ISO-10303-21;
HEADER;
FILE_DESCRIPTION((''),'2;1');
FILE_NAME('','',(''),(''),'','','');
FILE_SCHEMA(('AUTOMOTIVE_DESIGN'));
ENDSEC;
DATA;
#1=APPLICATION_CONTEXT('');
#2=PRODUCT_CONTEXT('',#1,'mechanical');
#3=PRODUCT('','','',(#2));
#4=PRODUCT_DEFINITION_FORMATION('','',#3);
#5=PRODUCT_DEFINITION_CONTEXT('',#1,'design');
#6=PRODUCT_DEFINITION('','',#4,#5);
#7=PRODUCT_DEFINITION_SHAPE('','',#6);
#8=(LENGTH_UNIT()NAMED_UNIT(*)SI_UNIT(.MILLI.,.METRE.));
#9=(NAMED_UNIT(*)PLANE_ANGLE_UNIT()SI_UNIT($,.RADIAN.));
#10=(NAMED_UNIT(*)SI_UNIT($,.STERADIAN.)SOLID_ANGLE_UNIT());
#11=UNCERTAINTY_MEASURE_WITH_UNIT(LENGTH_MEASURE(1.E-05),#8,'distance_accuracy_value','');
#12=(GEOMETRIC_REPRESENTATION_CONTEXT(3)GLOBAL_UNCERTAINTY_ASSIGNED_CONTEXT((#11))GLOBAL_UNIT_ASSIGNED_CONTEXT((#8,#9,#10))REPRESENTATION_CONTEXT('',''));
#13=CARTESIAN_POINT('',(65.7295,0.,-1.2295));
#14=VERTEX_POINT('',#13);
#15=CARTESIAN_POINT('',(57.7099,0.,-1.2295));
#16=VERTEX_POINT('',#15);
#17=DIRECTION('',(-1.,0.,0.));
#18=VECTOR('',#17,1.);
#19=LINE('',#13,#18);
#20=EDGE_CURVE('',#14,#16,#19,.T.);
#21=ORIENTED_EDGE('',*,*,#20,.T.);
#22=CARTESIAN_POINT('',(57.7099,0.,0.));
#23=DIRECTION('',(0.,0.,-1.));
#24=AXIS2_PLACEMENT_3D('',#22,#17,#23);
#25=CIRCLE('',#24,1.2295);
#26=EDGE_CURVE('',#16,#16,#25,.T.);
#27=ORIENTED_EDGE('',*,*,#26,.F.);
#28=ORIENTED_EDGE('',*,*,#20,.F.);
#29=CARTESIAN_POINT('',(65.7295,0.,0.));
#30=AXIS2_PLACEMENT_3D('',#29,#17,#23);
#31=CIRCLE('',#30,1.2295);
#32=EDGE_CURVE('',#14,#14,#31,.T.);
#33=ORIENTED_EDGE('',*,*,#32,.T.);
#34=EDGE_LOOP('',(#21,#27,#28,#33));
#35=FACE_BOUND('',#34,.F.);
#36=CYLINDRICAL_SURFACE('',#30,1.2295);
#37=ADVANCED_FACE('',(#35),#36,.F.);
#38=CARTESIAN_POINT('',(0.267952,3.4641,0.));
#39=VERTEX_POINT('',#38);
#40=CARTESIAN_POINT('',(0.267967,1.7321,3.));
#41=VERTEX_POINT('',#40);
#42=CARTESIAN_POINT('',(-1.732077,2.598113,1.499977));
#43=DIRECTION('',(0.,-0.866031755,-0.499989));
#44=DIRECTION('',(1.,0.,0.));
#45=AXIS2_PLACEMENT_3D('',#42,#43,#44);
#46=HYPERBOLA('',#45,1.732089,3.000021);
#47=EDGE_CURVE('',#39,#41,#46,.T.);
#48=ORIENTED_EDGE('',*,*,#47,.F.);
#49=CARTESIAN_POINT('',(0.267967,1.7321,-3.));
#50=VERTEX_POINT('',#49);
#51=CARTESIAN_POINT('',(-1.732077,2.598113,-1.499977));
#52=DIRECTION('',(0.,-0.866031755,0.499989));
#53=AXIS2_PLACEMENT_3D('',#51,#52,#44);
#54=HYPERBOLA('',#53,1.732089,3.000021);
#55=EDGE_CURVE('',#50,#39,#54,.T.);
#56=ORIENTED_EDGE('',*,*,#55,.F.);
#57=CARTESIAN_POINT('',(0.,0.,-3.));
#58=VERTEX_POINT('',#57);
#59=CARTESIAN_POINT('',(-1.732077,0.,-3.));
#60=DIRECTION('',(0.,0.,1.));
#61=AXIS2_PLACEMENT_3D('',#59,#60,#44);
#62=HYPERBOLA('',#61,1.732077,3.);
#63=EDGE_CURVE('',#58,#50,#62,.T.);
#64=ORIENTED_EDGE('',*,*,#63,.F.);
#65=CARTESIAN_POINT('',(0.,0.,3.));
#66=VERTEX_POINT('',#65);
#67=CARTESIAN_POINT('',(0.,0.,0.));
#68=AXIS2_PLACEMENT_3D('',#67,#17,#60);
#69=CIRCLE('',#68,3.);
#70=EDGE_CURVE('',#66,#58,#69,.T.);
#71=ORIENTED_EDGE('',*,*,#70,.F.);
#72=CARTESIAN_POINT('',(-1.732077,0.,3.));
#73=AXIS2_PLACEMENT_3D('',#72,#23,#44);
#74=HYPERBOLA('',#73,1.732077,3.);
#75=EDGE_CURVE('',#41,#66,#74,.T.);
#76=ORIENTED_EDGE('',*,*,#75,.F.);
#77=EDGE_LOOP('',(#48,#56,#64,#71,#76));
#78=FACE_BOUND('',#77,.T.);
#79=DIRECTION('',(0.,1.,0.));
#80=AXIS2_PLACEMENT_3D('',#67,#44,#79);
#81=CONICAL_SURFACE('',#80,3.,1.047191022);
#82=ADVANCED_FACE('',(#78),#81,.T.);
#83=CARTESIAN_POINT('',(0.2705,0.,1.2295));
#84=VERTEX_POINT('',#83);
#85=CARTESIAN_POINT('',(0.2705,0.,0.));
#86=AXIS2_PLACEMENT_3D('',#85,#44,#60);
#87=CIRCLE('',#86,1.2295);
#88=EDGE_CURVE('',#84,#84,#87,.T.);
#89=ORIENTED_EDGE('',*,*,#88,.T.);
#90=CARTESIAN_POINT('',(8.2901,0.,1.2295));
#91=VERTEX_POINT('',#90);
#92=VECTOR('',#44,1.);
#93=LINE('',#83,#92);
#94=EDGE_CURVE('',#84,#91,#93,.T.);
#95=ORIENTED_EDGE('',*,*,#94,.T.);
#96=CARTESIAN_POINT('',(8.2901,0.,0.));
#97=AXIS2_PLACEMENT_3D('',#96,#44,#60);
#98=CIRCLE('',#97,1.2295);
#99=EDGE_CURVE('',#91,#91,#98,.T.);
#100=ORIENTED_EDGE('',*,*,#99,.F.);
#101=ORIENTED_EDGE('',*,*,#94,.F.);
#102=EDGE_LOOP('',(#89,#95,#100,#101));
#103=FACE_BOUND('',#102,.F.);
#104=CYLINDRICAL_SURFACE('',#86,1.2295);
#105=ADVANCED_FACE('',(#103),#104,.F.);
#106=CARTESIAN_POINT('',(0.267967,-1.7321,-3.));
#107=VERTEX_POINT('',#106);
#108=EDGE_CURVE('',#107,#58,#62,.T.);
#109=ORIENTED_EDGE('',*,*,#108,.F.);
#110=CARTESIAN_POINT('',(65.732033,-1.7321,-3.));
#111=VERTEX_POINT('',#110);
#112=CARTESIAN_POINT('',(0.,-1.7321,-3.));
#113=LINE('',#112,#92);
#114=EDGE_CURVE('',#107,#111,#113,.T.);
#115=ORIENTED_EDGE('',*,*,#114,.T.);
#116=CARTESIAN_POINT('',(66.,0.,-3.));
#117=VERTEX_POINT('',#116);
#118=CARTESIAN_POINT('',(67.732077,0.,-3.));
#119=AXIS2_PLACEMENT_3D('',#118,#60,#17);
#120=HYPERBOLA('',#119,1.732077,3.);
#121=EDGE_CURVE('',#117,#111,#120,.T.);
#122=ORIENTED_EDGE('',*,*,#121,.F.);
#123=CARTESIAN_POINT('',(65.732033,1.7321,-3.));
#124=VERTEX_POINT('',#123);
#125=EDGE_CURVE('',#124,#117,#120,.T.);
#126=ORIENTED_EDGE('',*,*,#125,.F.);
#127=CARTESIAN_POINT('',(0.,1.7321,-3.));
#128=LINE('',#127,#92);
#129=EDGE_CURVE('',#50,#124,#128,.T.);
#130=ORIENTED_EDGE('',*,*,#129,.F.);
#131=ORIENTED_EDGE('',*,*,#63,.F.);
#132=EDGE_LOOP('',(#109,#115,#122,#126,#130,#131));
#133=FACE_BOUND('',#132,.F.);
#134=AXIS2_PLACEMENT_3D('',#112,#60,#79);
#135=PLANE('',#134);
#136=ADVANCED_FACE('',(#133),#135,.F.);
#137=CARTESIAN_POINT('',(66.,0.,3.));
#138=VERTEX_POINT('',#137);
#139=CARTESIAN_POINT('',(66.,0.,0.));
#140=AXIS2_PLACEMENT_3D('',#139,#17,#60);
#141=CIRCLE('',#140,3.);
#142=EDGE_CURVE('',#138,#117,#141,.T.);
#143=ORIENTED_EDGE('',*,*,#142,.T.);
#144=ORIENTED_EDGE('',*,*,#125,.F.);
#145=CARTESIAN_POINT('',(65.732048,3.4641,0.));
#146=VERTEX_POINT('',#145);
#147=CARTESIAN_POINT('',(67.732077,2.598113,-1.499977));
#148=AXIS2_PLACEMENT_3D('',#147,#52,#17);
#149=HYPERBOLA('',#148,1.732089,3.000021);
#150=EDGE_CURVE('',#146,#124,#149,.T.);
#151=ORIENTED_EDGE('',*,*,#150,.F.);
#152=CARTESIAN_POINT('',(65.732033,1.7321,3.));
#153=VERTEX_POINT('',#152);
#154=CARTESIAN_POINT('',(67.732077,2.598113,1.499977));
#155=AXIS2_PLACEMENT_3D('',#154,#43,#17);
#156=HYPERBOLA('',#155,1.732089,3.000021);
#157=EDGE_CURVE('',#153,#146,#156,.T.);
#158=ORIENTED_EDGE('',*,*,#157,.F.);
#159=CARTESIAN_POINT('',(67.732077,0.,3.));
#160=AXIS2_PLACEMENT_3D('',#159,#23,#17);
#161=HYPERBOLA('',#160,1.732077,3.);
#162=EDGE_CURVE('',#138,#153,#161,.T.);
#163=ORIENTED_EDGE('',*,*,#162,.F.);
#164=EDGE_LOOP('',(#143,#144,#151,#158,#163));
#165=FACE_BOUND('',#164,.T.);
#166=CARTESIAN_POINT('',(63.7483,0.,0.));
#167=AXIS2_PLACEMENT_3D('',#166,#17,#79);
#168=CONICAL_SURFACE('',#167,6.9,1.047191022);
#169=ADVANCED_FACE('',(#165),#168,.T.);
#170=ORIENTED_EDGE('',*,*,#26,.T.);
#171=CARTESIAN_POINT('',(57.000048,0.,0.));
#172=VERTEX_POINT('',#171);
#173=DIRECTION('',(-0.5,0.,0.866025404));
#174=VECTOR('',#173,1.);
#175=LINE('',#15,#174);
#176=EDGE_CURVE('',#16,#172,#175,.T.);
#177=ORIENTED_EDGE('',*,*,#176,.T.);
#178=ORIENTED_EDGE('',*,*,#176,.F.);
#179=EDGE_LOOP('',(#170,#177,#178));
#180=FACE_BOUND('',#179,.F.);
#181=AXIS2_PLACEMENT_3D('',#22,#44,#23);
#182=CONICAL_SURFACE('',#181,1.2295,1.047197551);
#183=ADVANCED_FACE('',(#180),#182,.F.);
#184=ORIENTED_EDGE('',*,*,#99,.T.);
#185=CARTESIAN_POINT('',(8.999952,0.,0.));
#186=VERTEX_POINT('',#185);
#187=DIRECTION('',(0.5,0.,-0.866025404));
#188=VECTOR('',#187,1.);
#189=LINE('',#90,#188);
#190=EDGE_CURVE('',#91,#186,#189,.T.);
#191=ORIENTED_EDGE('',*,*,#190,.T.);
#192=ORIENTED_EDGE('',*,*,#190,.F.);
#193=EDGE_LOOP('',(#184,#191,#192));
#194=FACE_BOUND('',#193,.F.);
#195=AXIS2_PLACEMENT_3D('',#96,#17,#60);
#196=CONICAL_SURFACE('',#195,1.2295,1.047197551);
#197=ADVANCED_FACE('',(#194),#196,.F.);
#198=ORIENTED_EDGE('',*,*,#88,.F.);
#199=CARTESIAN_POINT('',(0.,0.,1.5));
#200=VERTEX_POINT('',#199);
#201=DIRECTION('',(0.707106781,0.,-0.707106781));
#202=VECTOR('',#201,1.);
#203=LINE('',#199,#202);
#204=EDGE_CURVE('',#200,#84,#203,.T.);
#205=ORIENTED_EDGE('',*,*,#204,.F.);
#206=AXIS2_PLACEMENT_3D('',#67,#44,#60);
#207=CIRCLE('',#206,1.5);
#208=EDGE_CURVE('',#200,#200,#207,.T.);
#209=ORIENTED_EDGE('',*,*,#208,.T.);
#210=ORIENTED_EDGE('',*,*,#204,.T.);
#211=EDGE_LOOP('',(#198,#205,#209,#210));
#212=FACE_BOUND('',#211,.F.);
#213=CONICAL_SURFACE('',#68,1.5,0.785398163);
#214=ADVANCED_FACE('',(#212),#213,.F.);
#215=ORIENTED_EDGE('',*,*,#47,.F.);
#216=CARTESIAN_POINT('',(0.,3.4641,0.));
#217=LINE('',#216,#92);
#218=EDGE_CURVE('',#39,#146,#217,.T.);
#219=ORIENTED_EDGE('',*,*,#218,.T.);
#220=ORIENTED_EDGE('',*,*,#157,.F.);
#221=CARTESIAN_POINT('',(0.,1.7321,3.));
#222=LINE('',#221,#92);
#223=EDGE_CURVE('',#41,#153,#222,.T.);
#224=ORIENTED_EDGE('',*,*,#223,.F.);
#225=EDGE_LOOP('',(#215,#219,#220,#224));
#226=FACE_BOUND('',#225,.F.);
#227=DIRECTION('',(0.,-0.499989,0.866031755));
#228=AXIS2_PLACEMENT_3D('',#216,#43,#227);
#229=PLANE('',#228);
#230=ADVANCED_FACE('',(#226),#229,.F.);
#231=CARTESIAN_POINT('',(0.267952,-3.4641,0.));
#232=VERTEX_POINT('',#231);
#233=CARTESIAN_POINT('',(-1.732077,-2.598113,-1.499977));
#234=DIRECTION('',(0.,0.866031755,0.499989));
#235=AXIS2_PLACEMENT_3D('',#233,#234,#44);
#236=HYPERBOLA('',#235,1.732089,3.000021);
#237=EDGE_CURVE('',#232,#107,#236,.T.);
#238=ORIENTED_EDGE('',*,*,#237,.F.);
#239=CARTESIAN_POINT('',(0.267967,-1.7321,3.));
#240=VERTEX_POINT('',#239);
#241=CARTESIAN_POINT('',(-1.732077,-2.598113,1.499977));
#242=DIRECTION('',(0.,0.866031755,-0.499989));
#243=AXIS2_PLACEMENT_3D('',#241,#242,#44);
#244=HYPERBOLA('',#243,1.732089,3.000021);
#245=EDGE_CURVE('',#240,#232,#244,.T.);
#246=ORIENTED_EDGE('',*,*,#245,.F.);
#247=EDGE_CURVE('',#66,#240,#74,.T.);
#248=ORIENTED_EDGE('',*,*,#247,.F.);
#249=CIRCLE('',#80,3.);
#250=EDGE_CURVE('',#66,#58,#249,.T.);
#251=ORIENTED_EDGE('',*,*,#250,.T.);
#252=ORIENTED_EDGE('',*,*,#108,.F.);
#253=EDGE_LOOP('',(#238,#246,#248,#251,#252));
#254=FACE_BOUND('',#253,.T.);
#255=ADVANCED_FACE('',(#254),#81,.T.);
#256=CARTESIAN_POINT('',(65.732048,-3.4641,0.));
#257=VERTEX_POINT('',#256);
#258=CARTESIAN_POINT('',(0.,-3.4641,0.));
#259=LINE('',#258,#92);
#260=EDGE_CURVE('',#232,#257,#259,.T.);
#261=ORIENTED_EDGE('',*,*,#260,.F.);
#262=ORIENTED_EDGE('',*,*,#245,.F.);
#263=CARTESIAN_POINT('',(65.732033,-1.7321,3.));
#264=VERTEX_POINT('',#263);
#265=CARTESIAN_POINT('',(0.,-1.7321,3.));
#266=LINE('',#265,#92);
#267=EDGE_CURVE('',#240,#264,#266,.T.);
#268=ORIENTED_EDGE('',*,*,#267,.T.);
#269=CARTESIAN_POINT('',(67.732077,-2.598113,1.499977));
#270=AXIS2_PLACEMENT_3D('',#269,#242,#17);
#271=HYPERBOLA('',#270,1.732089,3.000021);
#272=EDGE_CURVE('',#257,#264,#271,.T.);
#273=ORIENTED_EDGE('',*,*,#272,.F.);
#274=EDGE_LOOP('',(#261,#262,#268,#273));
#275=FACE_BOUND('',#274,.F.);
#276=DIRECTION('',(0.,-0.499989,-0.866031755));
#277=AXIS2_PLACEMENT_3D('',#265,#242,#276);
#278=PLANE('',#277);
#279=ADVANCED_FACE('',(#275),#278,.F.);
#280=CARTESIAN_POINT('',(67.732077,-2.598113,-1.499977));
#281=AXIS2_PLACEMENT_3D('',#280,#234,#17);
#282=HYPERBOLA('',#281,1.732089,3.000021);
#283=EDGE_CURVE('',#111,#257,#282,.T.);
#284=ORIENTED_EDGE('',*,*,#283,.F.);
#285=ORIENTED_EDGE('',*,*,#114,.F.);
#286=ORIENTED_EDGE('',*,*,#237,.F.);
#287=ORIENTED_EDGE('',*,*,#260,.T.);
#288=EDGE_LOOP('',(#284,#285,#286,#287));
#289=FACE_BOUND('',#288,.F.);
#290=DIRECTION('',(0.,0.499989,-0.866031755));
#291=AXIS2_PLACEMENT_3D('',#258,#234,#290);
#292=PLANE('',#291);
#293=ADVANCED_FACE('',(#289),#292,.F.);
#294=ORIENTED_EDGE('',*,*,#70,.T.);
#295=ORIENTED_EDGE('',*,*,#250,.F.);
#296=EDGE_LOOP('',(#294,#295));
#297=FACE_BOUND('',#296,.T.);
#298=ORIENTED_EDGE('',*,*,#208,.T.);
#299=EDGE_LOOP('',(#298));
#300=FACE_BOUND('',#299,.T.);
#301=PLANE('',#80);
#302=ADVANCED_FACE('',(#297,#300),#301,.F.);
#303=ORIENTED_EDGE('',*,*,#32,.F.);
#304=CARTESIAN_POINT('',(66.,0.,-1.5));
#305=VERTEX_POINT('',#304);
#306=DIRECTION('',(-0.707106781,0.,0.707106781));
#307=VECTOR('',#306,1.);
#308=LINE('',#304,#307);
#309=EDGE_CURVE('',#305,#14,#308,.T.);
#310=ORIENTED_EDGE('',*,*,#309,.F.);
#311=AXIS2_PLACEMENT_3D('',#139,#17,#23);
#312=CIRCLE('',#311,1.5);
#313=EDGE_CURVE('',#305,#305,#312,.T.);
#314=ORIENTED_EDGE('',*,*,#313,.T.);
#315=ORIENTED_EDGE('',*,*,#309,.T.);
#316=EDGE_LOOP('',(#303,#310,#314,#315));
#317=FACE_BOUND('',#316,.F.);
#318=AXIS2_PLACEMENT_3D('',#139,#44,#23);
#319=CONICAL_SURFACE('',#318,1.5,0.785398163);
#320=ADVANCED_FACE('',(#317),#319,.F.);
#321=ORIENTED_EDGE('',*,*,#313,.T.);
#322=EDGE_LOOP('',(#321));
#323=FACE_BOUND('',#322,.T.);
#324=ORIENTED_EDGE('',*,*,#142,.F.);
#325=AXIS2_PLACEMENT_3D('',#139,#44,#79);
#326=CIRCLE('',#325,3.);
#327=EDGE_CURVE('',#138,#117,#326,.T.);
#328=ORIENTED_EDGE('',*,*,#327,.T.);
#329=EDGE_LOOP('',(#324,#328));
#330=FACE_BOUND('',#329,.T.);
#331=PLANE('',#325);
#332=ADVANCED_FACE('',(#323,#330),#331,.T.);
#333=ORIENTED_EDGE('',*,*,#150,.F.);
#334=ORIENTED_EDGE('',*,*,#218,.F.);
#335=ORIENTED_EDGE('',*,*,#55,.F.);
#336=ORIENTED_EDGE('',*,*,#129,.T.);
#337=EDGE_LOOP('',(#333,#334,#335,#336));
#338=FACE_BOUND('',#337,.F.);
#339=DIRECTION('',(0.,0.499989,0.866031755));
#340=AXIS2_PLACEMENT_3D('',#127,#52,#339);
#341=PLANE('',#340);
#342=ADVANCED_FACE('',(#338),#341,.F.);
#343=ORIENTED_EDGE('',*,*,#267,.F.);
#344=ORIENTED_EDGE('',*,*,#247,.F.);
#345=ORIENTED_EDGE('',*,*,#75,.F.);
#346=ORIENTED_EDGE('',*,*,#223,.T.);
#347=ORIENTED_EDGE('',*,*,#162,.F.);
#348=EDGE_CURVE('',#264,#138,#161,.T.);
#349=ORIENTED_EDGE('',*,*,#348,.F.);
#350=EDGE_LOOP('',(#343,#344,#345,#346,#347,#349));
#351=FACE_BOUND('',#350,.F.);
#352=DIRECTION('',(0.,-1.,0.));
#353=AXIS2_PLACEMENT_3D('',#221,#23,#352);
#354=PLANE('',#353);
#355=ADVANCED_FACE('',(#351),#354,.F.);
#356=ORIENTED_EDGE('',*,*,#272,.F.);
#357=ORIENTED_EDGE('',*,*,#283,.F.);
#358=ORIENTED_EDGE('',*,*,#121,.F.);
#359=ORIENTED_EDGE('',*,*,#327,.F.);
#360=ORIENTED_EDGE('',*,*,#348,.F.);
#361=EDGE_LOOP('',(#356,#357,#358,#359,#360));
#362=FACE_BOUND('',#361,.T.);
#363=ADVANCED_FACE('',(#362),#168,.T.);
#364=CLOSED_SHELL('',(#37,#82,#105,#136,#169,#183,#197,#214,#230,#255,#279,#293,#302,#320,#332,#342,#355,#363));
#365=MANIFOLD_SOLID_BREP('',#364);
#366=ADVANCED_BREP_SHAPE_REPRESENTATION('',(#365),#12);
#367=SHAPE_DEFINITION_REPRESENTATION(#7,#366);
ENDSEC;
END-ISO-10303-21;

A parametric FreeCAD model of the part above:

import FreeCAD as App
import Part
import Sketcher
Q = App.Units.Quantity


def add_polygon(sketch, points):
    """Adds a closed chain of lines whose ends are joined by coincident constraints."""
    first, n = sketch.GeometryCount, len(points)
    for a, b in zip(points, points[1:] + points[:1]):
        sketch.addGeometry(Part.LineSegment(App.Vector(*a, 0), App.Vector(*b, 0)), False)
    for i in range(n):
        sketch.addConstraint(Sketcher.Constraint("Coincident", first + i, 2, first + (i + 1) % n, 1))

doc = App.newDocument("Part")
body = doc.addObject("PartDesign::Body", "Body")

# Sketch on XY plane
sketch1 = body.newObject("Sketcher::SketchObject", "Sketch")
sketch1.AttachmentSupport = (doc.getObject("XY_Plane"), [""])
sketch1.MapMode = "FlatFace"
add_polygon(sketch1, [(0, 0), (66, 0), (66, 3), (63.7, 6.9), (2.3, 6.9), (0, 3)])  # lines 0-5
sketch1.addConstraint([
    Sketcher.Constraint("Horizontal", 0),
    Sketcher.Constraint("Vertical", 1),
    Sketcher.Constraint("Horizontal", 3),
    Sketcher.Constraint("Vertical", 5),
    Sketcher.Constraint("Coincident", 5, 2, -1, 1),
    Sketcher.Constraint("Horizontal", 1, 2, 4, 2),
    Sketcher.Constraint("Equal", 2, 4),
    Sketcher.Constraint("DistanceX", 0, 1, 0, 2, Q("66 mm")),
    Sketcher.Constraint("DistanceY", 1, 1, 1, 2, Q("3 mm")),
    Sketcher.Constraint("Angle", 2, Q("120.0004 deg")),
    Sketcher.Constraint("DistanceY", -1, 1, 2, 2, Q("6.9 mm")),
])
revolution = body.newObject("PartDesign::Revolution", "Revolution")
revolution.Profile = sketch1
revolution.ReferenceAxis = (sketch1, ["H_Axis"])
revolution.Angle = 360

# Sketch on YZ plane
sketch2 = body.newObject("Sketcher::SketchObject", "Sketch001")
sketch2.AttachmentSupport = (doc.getObject("YZ_Plane"), [""])
sketch2.MapMode = "FlatFace"
add_polygon(sketch2, [(6.9, -6.9), (6.9, 6.9), (-6.9, 6.9), (-6.9, -6.9)])  # lines 0-3
add_polygon(sketch2, [(-1.7, 3), (1.7, 3), (3.5, 0), (1.7, -3), (-1.7, -3), (-3.5, 0)])  # lines 4-9
sketch2.addConstraint([
    Sketcher.Constraint("Vertical", 0),
    Sketcher.Constraint("Horizontal", 1),
    Sketcher.Constraint("Vertical", 2),
    Sketcher.Constraint("Horizontal", 3),
    Sketcher.Constraint("Horizontal", 4),
    Sketcher.Constraint("Horizontal", 7),
    Sketcher.Constraint("Symmetric", 0, 2, 2, 2, -1, 1),
    Sketcher.Constraint("Symmetric", 4, 2, 7, 2, -1, 1),
    Sketcher.Constraint("Symmetric", 5, 2, 8, 2, -1, 1),
    Sketcher.Constraint("PointOnObject", 5, 2, -1),
    Sketcher.Constraint("Parallel", 6, 9),
    Sketcher.Constraint("Vertical", 4, 2, 6, 2),
    Sketcher.Constraint("Equal", 3, 0),
    Sketcher.Constraint("Angle", 5, Q("-60.0007 deg")),
    Sketcher.Constraint("DistanceX", 1, 2, 1, 1, Q("13.8 mm")),
    Sketcher.Constraint("DistanceY", -1, 1, 4, 2, Q("3 mm")),
    Sketcher.Constraint("DistanceX", 4, 1, 4, 2, Q("3.4642 mm")),
])
pocket1 = body.newObject("PartDesign::Pocket", "Pocket")
pocket1.Profile = sketch2
pocket1.Length = 66
pocket1.Reversed = True

# Sketch on YZ plane
sketch3 = body.newObject("Sketcher::SketchObject", "Sketch002")
sketch3.AttachmentSupport = (doc.getObject("YZ_Plane"), [""])
sketch3.MapMode = "FlatFace"
sketch3.addGeometry(Part.Circle(App.Vector(0, 0, 0), App.Vector(0, 0, 1), 1.2), False)
sketch3.addConstraint([
    Sketcher.Constraint("Coincident", 0, 3, -1, 1),
    Sketcher.Constraint("Diameter", 0, Q("2.459 mm")),
])
doc.recompute()
hole = body.newObject("PartDesign::Hole", "Hole")
hole.Profile = sketch3
hole.ThreadType = "None"
hole.Diameter = 2.459
hole.DepthType = "Dimension"
hole.Depth = 8.2901
hole.DrillPoint = "Angled"
hole.DrillPointAngle = 120
hole.HoleCutType = "Countersink"
hole.HoleCutDiameter = 3
hole.HoleCutCountersinkAngle = 90
hole.Reversed = True

# Sketch on YZ plane
sketch4 = body.newObject("Sketcher::SketchObject", "Sketch003")
sketch4.AttachmentSupport = (doc.getObject("YZ_Plane"), [""])
sketch4.MapMode = "FlatFace"
sketch4.AttachmentOffset = App.Placement(App.Vector(0, 0, 66), App.Rotation())
sketch4.addGeometry(Part.Circle(App.Vector(0, 0, 0), App.Vector(0, 0, 1), 1.2), False)
sketch4.addConstraint([
    Sketcher.Constraint("Coincident", 0, 3, -1, 1),
    Sketcher.Constraint("Diameter", 0, Q("2.459 mm")),
])
doc.recompute()
hole2 = body.newObject("PartDesign::Hole", "Hole001")
hole2.Profile = sketch4
hole2.ThreadType = "None"
hole2.Diameter = 2.459
hole2.DepthType = "Dimension"
hole2.Depth = 8.2901
hole2.DrillPoint = "Angled"
hole2.DrillPointAngle = 120
hole2.HoleCutType = "Countersink"
hole2.HoleCutDiameter = 3
hole2.HoleCutCountersinkAngle = 90

doc.recompute()
